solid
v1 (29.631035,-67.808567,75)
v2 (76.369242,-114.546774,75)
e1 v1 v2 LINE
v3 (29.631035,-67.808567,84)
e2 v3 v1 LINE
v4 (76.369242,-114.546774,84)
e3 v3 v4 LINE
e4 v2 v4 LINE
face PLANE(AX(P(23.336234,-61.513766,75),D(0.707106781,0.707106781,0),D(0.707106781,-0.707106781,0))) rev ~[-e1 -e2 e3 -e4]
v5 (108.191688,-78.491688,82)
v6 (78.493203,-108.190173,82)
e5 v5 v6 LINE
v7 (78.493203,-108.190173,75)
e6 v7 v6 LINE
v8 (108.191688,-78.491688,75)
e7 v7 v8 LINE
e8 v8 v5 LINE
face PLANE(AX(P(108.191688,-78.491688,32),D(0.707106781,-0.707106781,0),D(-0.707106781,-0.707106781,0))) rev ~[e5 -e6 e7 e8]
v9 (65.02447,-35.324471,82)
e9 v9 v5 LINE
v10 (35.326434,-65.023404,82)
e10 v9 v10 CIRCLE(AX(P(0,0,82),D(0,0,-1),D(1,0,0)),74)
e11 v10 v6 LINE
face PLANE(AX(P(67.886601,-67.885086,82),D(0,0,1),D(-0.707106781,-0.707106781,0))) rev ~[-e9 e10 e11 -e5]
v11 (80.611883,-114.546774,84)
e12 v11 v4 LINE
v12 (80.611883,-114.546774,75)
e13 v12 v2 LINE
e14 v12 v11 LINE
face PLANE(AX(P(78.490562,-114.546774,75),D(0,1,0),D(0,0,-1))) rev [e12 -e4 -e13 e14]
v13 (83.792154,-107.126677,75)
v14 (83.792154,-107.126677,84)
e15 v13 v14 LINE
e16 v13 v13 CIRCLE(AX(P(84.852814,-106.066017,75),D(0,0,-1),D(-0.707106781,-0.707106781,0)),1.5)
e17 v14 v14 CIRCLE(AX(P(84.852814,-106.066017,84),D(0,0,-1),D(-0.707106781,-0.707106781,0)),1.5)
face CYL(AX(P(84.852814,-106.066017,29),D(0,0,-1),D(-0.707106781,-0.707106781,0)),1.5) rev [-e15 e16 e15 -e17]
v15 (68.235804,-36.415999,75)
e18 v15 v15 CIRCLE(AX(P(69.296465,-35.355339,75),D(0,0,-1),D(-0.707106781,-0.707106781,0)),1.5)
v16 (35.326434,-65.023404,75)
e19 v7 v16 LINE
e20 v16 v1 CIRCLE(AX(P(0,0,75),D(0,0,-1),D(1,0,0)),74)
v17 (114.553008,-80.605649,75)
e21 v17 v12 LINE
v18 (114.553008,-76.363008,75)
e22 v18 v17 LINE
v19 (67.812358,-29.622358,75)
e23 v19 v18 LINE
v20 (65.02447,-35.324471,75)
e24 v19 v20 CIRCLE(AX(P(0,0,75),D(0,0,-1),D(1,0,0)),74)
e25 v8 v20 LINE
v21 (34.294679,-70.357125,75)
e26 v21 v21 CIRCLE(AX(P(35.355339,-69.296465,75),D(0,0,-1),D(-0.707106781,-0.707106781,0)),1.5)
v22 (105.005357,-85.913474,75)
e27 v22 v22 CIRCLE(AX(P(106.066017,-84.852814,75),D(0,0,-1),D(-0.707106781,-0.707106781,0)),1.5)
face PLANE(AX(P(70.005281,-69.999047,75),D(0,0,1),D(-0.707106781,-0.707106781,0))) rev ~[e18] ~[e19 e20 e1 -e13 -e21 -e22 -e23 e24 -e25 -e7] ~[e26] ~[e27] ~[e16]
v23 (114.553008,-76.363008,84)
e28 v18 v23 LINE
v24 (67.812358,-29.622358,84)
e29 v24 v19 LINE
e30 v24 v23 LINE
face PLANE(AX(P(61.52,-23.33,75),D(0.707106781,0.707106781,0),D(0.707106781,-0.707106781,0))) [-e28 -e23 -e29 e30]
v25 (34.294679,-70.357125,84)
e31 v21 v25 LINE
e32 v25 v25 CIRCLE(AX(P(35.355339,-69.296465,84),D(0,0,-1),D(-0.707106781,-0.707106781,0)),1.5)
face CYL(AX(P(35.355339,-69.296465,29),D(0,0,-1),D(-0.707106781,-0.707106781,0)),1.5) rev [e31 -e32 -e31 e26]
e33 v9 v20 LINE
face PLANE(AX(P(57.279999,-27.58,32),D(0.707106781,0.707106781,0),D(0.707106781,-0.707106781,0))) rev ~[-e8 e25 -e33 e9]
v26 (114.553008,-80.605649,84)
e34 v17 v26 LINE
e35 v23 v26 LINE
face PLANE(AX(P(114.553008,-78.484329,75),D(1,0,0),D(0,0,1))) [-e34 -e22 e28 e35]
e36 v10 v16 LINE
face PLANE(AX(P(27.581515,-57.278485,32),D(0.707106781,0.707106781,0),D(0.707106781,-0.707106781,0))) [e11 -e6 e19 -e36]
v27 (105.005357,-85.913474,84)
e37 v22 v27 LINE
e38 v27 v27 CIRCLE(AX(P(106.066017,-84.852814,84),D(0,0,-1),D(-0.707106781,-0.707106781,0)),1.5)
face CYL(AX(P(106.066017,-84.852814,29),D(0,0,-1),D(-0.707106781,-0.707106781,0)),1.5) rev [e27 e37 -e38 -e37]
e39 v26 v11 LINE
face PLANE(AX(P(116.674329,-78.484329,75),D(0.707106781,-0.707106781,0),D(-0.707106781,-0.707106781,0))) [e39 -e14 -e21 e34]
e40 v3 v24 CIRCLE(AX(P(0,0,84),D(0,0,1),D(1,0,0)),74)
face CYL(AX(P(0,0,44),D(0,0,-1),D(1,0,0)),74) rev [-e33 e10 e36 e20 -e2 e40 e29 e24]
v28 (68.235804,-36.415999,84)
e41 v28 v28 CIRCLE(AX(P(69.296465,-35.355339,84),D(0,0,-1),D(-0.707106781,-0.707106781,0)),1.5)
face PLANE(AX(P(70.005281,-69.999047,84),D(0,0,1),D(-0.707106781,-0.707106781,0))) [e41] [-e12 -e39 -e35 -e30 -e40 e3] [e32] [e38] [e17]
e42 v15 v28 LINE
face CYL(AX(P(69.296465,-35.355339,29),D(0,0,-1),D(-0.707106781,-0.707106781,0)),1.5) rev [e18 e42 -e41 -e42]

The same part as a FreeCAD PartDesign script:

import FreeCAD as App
import Part
import Sketcher
from FreeCAD import Vector
Q = App.Units.Quantity


def edges_at(feature, points):
    """Names of the edges that pass closest to the given points."""
    edges = feature.Shape.Edges
    near = lambda p: min(range(len(edges)), key=lambda i: edges[i].distToShape(Part.Vertex(*p))[0])
    return sorted({f"Edge{near(p) + 1}" for p in points})

doc = App.newDocument("Part")
body = doc.addObject("PartDesign::Body", "Body")

sketch1 = body.newObject("Sketcher::SketchObject", "Sketch")
sketch1.AttachmentSupport = (doc.getObject("XY_Plane"), [""])
sketch1.MapMode = "FlatFace"
sketch1.AttachmentOffset = App.Placement(Vector(0, 0, -80), App.Rotation())
sketch1.addGeometry(Part.Circle(Vector(-24, 74, 0), Vector(0, 0, 1), 1.5), False)
sketch1.addConstraint([
    Sketcher.Constraint("Diameter", 0, Q("3 mm")),
    Sketcher.Constraint("DistanceX", 0, 3, -1, 1, Q("24 mm")),
    Sketcher.Constraint("DistanceY", -1, 1, 0, 3, Q("74 mm")),
])
pad1 = body.newObject("PartDesign::Pad", "Pad")
pad1.Profile = sketch1
pad1.Length = 60
body2 = doc.addObject("PartDesign::Body", "Body001")

sketch2 = body2.newObject("Sketcher::SketchObject", "Sketch001")
sketch2.AttachmentSupport = (doc.getObject("XY_Plane001"), [""])
sketch2.MapMode = "FlatFace"
sketch2.AttachmentOffset = App.Placement(Vector(0, 0, -80), App.Rotation())
sketch2.addGeometry(Part.Circle(Vector(-15, 135, 0), Vector(0, 0, 1), 1.5), False)
sketch2.addConstraint([
    Sketcher.Constraint("Diameter", 0, Q("3 mm")),
    Sketcher.Constraint("DistanceX", 0, 3, -1, 1, Q("15 mm")),
    Sketcher.Constraint("DistanceY", -1, 1, 0, 3, Q("135 mm")),
])
pad2 = body2.newObject("PartDesign::Pad", "Pad001")
pad2.Profile = sketch2
pad2.Length = 60
body3 = doc.addObject("PartDesign::Body", "Body002")

sketch3 = body3.newObject("Sketcher::SketchObject", "Sketch002")
sketch3.AttachmentSupport = (doc.getObject("XY_Plane002"), [""])
sketch3.MapMode = "FlatFace"
sketch3.AttachmentOffset = App.Placement(Vector(0, 0, -80), App.Rotation())
sketch3.addGeometry(Part.Circle(Vector(15, 135, 0), Vector(0, 0, 1), 1.5), False)
sketch3.addConstraint([
    Sketcher.Constraint("Diameter", 0, Q("3 mm")),
    Sketcher.Constraint("DistanceX", -1, 1, 0, 3, Q("15 mm")),
    Sketcher.Constraint("DistanceY", -1, 1, 0, 3, Q("135 mm")),
])
pad3 = body3.newObject("PartDesign::Pad", "Pad002")
pad3.Profile = sketch3
pad3.Length = 60
body4 = doc.addObject("PartDesign::Body", "Body003")
body4.AllowCompound = True

sketch4 = body4.newObject("Sketcher::SketchObject", "Sketch003")
sketch4.AttachmentSupport = (doc.getObject("XY_Plane003"), [""])
sketch4.MapMode = "FlatFace"
sketch4.AttachmentOffset = App.Placement(Vector(0, 0, -80), App.Rotation())
sketch4.addGeometry(Part.Circle(Vector(24, 74, 0), Vector(0, 0, 1), 1.5), False)
sketch4.addConstraint([
    Sketcher.Constraint("Diameter", 0, Q("3 mm")),
    Sketcher.Constraint("DistanceX", -1, 1, 0, 3, Q("24 mm")),
    Sketcher.Constraint("DistanceY", -1, 1, 0, 3, Q("74 mm")),
])
pad4 = body4.newObject("PartDesign::Pad", "Pad003")
pad4.Profile = sketch4
pad4.Length = 60
doc.recompute()

boolean = body4.newObject("PartDesign::Boolean", "Boolean")
boolean.Type = "Fuse"
boolean.addObjects([body])
doc.recompute()

boolean2 = body4.newObject("PartDesign::Boolean", "Boolean001")
boolean2.Type = "Fuse"
boolean2.addObjects([body2])
doc.recompute()

boolean3 = body4.newObject("PartDesign::Boolean", "Boolean002")
boolean3.Type = "Fuse"
boolean3.addObjects([body3])
body5 = doc.addObject("PartDesign::Body", "Body004")
body5.AllowCompound = True
doc.recompute()

body4.Placement = App.Placement(Vector(0, 0, 109), App.Rotation(Vector(0, 0, 1), 225))
boolean4 = body5.newObject("PartDesign::Boolean", "Boolean003")
boolean4.Type = "Fuse"
boolean4.addObjects([body4])
body6 = doc.addObject("PartDesign::Body", "Body005")

sketch5 = body6.newObject("Sketcher::SketchObject", "Sketch004")
sketch5.AttachmentSupport = (doc.getObject("XY_Plane005"), [""])
sketch5.MapMode = "FlatFace"
sketch5.AttachmentOffset = App.Placement(Vector(0, 0, 44), App.Rotation())
sketch5.addGeometry(Part.Circle(Vector(0, 0, 0), Vector(0, 0, 1), 74), False)
sketch5.addConstraint([
    Sketcher.Constraint("Coincident", 0, 3, -1, 1),
    Sketcher.Constraint("Diameter", 0, Q("148 mm")),
])
pad5 = body6.newObject("PartDesign::Pad", "Pad004")
pad5.Profile = sketch5
pad5.Length = 40
body7 = doc.addObject("PartDesign::Body", "Body006")

sketch6 = body7.newObject("Sketcher::SketchObject", "Sketch005")
sketch6.AttachmentSupport = (doc.getObject("XY_Plane006"), [""])
sketch6.MapMode = "FlatFace"
sketch6.AttachmentOffset = App.Placement(Vector(0, 0, 31), App.Rotation())
sketch6.addGeometry([
    Part.LineSegment(Vector(-21.001071, 132.005081, 0), Vector(-21.001071, 60.005081, 0)),
    Part.LineSegment(Vector(-21.001071, 60.005081, 0), Vector(20.998929, 60.005081, 0)),
    Part.LineSegment(Vector(20.998929, 60.005081, 0), Vector(20.998929, 132.005081, 0)),
    Part.LineSegment(Vector(20.998929, 132.005081, 0), Vector(-21.001071, 132.005081, 0)),
], False)
sketch6.addConstraint([
    Sketcher.Constraint("Coincident", 0, 2, 1, 1),
    Sketcher.Constraint("Coincident", 1, 2, 2, 1),
    Sketcher.Constraint("Coincident", 2, 2, 3, 1),
    Sketcher.Constraint("Coincident", 3, 2, 0, 1),
    Sketcher.Constraint("Vertical", 0),
    Sketcher.Constraint("Horizontal", 1),
    Sketcher.Constraint("Vertical", 2),
    Sketcher.Constraint("Horizontal", 3),
    Sketcher.Constraint("DistanceX", 1, 1, 1, 2, Q("42 mm")),
    Sketcher.Constraint("DistanceY", 0, 2, 0, 1, Q("72 mm")),
    Sketcher.Constraint("DistanceX", 0, 2, -1, 1, Q("21.001071 mm")),
    Sketcher.Constraint("DistanceY", -1, 1, 0, 2, Q("60.005081 mm")),
])
pad6 = body7.newObject("PartDesign::Pad", "Pad005")
pad6.Profile = sketch6
pad6.Length = 50
body8 = doc.addObject("PartDesign::Body", "Body007")
doc.recompute()

body7.Placement = App.Placement(Vector(0, 0, 1), App.Rotation(Vector(0, 0, 1), 225))
boolean5 = body8.newObject("PartDesign::Boolean", "Boolean004")
boolean5.Type = "Fuse"
boolean5.addObjects([body7])
body9 = doc.addObject("PartDesign::Body", "Body008")

sketch7 = body9.newObject("Sketcher::SketchObject", "Sketch006")
sketch7.AttachmentSupport = (doc.getObject("XY_Plane008"), [""])
sketch7.MapMode = "FlatFace"
sketch7.AttachmentOffset = App.Placement(Vector(0, 0, 75), App.Rotation())
sketch7.addGeometry([
    Part.LineSegment(Vector(-27.004408, 137.99801, 0), Vector(-27.004408, 59.99801, 0)),
    Part.LineSegment(Vector(-27.004408, 59.99801, 0), Vector(26.995592, 59.99801, 0)),
    Part.LineSegment(Vector(26.995592, 59.99801, 0), Vector(26.995592, 137.99801, 0)),
    Part.LineSegment(Vector(26.995592, 137.99801, 0), Vector(-27.004408, 137.99801, 0)),
], False)
sketch7.addConstraint([
    Sketcher.Constraint("Coincident", 0, 2, 1, 1),
    Sketcher.Constraint("Coincident", 1, 2, 2, 1),
    Sketcher.Constraint("Coincident", 2, 2, 3, 1),
    Sketcher.Constraint("Coincident", 3, 2, 0, 1),
    Sketcher.Constraint("Vertical", 0),
    Sketcher.Constraint("Horizontal", 1),
    Sketcher.Constraint("Vertical", 2),
    Sketcher.Constraint("Horizontal", 3),
    Sketcher.Constraint("DistanceX", 1, 1, 1, 2, Q("54 mm")),
    Sketcher.Constraint("DistanceY", 0, 2, 0, 1, Q("78 mm")),
    Sketcher.Constraint("DistanceX", 0, 2, -1, 1, Q("27.004408 mm")),
    Sketcher.Constraint("DistanceY", -1, 1, 0, 2, Q("59.99801 mm")),
])
pad7 = body9.newObject("PartDesign::Pad", "Pad006")
pad7.Profile = sketch7
pad7.Length = 9
body10 = doc.addObject("PartDesign::Body", "Body009")
doc.recompute()

body9.Placement = App.Placement(Vector(0, 0, 0), App.Rotation(Vector(0, 0, 1), 225))
boolean6 = body10.newObject("PartDesign::Boolean", "Boolean005")
boolean6.Type = "Fuse"
boolean6.addObjects([body9])
doc.recompute()

boolean7 = body10.newObject("PartDesign::Boolean", "Boolean006")
boolean7.Type = "Cut"
boolean7.addObjects([body8])
doc.recompute()

boolean8 = body10.newObject("PartDesign::Boolean", "Boolean007")
boolean8.Type = "Cut"
boolean8.addObjects([body6])
doc.recompute()

chamfer = body10.newObject("PartDesign::Chamfer", "Chamfer")
chamfer.Base = (boolean8, edges_at(boolean8, [(116.674, -78.484, 79.5), (78.491, -116.668, 79.5)]))
chamfer.Size = 3
doc.recompute()

boolean9 = body10.newObject("PartDesign::Boolean", "Boolean008")
boolean9.Type = "Cut"
boolean9.addObjects([body5])

doc.recompute()
